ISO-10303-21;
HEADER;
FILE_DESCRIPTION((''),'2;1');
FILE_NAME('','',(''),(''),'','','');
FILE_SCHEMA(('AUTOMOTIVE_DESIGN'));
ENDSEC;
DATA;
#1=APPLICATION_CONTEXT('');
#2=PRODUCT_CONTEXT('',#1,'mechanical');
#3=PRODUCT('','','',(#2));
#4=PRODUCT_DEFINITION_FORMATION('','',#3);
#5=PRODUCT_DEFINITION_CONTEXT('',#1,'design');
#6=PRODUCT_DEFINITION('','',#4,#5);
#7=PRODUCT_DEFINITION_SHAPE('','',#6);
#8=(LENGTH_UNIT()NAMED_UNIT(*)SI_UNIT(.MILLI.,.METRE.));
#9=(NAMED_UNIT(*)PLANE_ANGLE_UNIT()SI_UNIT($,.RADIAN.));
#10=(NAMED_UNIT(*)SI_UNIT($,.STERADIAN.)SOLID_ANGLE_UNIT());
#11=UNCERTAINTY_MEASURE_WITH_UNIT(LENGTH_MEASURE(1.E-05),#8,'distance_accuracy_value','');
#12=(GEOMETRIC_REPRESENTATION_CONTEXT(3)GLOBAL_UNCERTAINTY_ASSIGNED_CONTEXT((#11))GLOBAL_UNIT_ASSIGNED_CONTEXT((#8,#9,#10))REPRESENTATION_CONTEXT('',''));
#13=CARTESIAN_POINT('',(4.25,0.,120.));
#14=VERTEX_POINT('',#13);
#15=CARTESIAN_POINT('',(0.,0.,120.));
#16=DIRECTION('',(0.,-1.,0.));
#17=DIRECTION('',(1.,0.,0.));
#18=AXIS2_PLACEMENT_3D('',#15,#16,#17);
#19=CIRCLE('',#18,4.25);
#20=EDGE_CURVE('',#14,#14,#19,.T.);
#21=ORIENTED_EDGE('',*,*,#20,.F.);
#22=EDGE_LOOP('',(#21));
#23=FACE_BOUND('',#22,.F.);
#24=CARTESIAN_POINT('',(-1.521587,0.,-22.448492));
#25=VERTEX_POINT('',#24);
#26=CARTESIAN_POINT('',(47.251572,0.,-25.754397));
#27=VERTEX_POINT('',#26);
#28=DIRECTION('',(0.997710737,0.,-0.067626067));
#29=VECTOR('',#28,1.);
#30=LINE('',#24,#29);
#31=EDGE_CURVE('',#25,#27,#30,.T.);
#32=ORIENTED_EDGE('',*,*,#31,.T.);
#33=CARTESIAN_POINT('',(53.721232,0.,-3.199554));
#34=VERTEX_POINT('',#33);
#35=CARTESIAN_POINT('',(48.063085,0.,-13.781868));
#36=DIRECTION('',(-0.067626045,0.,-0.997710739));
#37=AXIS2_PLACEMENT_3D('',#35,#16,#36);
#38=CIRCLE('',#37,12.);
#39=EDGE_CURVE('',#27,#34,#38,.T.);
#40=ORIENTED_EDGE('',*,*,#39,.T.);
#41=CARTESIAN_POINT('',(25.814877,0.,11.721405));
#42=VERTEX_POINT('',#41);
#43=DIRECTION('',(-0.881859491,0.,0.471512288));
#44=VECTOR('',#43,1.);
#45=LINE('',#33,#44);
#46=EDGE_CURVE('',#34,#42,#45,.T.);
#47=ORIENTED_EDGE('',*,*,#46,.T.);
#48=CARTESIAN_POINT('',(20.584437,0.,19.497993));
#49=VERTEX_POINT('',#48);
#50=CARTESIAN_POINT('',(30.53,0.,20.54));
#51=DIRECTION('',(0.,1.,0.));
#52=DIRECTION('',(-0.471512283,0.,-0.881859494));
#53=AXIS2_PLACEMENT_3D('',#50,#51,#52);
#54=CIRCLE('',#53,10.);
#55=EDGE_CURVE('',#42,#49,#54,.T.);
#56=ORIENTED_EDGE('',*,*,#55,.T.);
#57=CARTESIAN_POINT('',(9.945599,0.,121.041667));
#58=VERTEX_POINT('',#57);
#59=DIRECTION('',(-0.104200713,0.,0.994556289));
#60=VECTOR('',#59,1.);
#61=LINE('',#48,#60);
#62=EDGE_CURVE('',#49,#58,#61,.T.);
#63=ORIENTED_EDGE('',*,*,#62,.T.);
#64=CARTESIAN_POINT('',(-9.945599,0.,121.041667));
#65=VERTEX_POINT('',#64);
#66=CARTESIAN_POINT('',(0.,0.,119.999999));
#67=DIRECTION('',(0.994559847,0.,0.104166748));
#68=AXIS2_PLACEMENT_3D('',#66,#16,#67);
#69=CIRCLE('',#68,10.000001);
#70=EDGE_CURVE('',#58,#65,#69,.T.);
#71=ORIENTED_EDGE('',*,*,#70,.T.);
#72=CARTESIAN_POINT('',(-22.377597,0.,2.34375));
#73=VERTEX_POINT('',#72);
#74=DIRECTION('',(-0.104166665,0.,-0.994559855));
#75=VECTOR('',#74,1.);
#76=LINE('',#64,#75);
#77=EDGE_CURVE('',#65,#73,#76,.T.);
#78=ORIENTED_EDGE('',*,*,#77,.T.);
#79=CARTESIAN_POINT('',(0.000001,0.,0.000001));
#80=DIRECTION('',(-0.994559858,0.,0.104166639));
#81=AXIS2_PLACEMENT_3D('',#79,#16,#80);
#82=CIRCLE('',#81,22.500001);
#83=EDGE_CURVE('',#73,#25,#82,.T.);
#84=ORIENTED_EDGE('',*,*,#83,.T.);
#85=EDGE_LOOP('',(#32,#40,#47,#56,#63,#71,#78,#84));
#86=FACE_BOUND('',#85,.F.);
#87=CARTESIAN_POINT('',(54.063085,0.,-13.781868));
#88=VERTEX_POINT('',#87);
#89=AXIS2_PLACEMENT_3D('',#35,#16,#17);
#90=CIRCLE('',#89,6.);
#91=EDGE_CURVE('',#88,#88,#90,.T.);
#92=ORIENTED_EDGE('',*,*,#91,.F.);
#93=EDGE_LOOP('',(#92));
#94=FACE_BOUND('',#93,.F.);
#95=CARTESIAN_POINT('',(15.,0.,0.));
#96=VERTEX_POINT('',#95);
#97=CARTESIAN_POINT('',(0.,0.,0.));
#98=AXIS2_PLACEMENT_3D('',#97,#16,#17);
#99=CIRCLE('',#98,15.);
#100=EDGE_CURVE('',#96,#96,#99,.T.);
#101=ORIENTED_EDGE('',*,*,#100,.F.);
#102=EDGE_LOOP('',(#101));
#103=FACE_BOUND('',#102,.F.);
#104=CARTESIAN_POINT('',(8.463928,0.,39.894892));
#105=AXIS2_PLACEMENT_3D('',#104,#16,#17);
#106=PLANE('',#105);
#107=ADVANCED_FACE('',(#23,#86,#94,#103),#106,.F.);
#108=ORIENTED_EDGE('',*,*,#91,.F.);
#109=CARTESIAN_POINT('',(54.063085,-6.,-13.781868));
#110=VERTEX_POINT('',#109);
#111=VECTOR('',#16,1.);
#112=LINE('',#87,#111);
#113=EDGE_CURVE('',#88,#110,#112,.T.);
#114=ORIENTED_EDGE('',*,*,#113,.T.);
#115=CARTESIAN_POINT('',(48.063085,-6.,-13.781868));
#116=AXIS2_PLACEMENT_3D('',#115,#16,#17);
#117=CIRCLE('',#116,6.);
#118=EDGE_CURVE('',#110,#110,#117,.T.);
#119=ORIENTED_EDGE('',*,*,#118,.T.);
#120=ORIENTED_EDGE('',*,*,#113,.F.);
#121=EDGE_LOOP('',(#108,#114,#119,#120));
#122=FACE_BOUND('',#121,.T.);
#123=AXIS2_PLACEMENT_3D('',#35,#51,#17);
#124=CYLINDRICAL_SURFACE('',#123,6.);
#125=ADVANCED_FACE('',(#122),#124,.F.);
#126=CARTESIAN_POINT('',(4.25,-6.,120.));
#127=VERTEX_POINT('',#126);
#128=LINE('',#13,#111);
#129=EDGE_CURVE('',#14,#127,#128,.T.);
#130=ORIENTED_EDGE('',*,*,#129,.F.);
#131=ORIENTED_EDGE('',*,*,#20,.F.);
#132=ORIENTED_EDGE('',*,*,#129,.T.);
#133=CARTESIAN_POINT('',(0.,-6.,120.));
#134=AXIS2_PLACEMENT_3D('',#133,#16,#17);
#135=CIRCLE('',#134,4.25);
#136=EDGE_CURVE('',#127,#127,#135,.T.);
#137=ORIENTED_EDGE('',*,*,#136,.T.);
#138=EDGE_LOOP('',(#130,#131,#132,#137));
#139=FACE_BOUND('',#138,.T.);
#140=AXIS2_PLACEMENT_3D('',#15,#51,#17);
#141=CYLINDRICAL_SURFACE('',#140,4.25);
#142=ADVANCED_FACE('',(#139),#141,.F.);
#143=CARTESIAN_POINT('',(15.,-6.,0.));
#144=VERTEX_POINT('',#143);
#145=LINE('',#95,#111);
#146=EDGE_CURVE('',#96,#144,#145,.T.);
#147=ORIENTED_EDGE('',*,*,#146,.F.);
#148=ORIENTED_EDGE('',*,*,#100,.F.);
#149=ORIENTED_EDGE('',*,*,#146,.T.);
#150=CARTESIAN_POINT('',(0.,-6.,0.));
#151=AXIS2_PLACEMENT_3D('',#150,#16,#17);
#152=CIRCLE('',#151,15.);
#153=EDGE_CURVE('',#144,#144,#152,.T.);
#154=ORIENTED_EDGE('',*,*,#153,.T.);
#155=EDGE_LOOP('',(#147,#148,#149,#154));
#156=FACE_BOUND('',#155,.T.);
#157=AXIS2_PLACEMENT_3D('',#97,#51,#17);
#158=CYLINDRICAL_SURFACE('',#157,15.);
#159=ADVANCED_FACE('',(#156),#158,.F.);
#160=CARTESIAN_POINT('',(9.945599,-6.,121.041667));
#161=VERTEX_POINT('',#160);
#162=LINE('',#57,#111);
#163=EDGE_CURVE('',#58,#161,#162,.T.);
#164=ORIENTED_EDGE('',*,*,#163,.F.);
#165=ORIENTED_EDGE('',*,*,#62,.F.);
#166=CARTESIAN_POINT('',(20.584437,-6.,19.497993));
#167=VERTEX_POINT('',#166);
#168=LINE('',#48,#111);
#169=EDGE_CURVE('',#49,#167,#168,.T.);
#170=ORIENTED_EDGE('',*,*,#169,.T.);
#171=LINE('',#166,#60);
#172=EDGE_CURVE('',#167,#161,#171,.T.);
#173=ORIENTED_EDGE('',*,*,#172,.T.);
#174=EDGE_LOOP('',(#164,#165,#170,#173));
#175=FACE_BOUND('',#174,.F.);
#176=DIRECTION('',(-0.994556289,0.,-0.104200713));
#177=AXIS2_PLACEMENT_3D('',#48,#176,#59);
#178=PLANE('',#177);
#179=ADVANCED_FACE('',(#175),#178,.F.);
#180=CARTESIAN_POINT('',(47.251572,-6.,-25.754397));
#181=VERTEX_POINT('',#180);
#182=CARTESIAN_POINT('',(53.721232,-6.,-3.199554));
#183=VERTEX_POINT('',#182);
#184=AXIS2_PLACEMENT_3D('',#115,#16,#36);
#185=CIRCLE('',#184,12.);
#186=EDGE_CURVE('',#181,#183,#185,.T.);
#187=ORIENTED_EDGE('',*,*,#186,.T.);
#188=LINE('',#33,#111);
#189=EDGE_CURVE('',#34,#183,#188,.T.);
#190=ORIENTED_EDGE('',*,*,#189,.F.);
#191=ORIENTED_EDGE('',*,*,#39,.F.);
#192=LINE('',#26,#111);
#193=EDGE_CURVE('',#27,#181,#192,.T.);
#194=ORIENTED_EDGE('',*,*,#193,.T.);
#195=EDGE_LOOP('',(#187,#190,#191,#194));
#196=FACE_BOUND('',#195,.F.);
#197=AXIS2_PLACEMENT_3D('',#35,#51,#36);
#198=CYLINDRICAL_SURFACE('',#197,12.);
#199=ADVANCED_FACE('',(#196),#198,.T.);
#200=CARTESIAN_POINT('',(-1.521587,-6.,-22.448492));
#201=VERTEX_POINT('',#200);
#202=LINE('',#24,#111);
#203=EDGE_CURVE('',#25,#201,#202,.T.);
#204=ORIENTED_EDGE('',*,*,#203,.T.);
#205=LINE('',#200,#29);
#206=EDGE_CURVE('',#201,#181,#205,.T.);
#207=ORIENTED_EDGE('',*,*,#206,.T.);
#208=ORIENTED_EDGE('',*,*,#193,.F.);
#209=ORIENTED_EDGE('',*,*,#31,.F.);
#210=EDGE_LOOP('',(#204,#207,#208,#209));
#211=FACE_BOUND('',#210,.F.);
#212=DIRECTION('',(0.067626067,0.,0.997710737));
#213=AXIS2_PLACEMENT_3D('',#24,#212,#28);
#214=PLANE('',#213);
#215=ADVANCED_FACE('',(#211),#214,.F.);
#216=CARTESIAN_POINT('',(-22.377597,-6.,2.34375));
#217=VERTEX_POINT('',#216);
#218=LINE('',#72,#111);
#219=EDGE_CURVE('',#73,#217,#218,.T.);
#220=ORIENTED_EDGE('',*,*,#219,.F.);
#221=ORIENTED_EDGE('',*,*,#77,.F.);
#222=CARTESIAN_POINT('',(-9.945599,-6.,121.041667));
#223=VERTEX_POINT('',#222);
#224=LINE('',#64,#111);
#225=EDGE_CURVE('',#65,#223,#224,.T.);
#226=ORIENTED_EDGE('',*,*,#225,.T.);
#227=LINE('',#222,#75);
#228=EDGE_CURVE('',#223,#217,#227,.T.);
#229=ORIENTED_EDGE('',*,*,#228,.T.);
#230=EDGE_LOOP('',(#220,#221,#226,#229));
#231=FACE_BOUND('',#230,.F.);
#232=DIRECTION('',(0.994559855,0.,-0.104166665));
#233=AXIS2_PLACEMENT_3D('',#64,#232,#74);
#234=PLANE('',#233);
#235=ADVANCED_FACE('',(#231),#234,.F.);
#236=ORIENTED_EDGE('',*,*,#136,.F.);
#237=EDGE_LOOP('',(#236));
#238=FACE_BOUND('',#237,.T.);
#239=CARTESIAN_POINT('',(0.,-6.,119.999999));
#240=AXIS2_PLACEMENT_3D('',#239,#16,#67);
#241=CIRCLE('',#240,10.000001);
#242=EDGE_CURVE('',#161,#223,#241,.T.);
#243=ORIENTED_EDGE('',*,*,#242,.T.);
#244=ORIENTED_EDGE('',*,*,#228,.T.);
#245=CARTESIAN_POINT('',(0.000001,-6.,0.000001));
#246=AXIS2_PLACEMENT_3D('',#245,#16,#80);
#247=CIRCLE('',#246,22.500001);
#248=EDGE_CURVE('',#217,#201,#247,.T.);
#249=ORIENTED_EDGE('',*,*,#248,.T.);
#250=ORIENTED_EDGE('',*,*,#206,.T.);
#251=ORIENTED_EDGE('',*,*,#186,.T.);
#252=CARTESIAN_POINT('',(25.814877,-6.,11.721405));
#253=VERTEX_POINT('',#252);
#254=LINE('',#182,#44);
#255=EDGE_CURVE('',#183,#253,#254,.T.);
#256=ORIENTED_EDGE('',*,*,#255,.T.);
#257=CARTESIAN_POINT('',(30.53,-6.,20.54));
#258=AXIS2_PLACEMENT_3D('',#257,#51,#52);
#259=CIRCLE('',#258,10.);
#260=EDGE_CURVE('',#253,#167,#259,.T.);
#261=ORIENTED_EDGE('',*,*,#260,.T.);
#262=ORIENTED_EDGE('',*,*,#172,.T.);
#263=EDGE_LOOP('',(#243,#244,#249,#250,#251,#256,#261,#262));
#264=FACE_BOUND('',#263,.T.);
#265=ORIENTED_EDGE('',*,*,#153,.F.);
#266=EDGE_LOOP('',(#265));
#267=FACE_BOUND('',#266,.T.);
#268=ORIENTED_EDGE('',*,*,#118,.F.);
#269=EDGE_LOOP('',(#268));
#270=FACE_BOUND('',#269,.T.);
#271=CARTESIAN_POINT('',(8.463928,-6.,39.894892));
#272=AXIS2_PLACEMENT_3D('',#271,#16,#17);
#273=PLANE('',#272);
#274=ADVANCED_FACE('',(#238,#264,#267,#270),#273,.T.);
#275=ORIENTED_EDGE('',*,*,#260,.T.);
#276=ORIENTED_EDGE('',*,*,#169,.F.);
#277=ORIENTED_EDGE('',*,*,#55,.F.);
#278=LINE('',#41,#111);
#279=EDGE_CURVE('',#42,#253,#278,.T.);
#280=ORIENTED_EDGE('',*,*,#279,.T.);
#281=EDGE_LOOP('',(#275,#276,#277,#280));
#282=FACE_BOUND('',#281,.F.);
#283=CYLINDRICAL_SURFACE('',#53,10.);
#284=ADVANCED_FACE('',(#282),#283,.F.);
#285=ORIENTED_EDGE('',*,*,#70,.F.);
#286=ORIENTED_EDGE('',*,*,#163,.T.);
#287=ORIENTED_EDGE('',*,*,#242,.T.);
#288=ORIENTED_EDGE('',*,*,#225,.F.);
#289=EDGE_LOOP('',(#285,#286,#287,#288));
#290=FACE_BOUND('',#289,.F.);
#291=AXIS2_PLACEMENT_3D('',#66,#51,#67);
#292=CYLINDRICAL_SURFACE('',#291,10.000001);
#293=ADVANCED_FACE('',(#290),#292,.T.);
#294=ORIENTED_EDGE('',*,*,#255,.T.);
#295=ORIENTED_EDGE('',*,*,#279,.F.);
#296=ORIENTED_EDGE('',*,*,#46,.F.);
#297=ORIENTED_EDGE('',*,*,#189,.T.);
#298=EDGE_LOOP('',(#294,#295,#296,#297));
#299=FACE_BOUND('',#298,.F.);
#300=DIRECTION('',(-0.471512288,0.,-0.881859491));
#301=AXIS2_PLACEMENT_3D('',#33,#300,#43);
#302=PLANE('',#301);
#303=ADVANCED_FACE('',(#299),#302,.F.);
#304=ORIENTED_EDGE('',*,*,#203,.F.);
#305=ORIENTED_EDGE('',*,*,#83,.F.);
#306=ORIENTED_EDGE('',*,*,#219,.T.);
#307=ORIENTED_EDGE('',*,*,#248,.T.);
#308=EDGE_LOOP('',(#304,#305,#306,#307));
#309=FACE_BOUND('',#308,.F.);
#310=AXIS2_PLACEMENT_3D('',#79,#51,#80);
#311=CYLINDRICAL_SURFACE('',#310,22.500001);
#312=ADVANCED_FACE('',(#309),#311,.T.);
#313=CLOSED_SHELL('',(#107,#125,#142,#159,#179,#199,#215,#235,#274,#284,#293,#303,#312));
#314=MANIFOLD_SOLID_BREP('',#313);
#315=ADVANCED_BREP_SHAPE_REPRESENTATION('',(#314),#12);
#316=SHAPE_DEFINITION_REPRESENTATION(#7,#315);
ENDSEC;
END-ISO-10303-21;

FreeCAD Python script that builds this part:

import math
import FreeCAD as App
import Part
import Sketcher

V = App.Vector

doc = App.newDocument("Part")
body = doc.addObject("PartDesign::Body", "Body")

# Sketch on XZ plane
sketch1 = doc.addObject("Sketcher::SketchObject", "Sketch")
body.addObject(sketch1)
sketch1.AttachmentSupport = (doc.XZ_Plane, [""])
sketch1.MapMode = "FlatFace"
sketch1.addGeometry(Part.LineSegment(V(-9.9, 121, 0), V(-22.4, 2.3, 0)), False)
sketch1.addGeometry(Part.ArcOfCircle(Part.Circle(V(0, 0, 0), V(0, 0, 1), 22.5), math.radians(174), math.radians(266)), False)
sketch1.addGeometry(Part.LineSegment(V(-1.5, -22.4, 0), V(47.3, -25.8, 0)), False)
sketch1.addGeometry(Part.ArcOfCircle(Part.Circle(V(48.1, -13.8, 0), V(0, 0, 1), 12), math.radians(-94), math.radians(62)), False)
sketch1.addGeometry(Part.LineSegment(V(53.7, -3.2, 0), V(25.8, 11.7, 0)), False)
sketch1.addGeometry(Part.ArcOfCircle(Part.Circle(V(30.5, 20.5, 0), V(0, 0, 1), 10), math.radians(-174), math.radians(-118)), False)
sketch1.addGeometry(Part.LineSegment(V(20.6, 19.5, 0), V(9.9, 121, 0)), False)
sketch1.addGeometry(Part.ArcOfCircle(Part.Circle(V(0, 120, 0), V(0, 0, 1), 10), math.radians(6), math.radians(174)), False)
sketch1.addGeometry(Part.Circle(V(0, 0, 0), V(0, 0, 1), 15), False)
sketch1.addGeometry(Part.Circle(V(48.1, -13.8, 0), V(0, 0, 1), 6), False)
sketch1.addGeometry(Part.Circle(V(0, 120, 0), V(0, 0, 1), 4.2), False)
sketch1.addConstraint(Sketcher.Constraint("Tangent", 0, 2, 1, 1))
sketch1.addConstraint(Sketcher.Constraint("Tangent", 1, 2, 2, 1))
sketch1.addConstraint(Sketcher.Constraint("Tangent", 2, 2, 3, 1))
sketch1.addConstraint(Sketcher.Constraint("Tangent", 3, 2, 4, 1))
sketch1.addConstraint(Sketcher.Constraint("Tangent", 4, 2, 5, 2))
sketch1.addConstraint(Sketcher.Constraint("Tangent", 5, 1, 6, 1))
sketch1.addConstraint(Sketcher.Constraint("Coincident", 6, 2, 7, 1))
sketch1.addConstraint(Sketcher.Constraint("Tangent", 7, 2, 0, 1))
sketch1.addConstraint(Sketcher.Constraint("Coincident", 1, 3, -1, 1))
sketch1.addConstraint(Sketcher.Constraint("Coincident", 8, 3, -1, 1))
sketch1.addConstraint(Sketcher.Constraint("Coincident", 9, 3, 3, 3))
sketch1.addConstraint(Sketcher.Constraint("Coincident", 10, 3, 7, 3))
sketch1.addConstraint(Sketcher.Constraint("Equal", 5, 7))
sketch1.addConstraint(Sketcher.Constraint("Symmetric", 6, 2, 7, 2, -2))
sketch1.addConstraint(Sketcher.Constraint("Diameter", 8, 30.0))
sketch1.addConstraint(Sketcher.Constraint("Diameter", 9, 12.0))
sketch1.addConstraint(Sketcher.Constraint("Radius", 3, 12.0))
sketch1.addConstraint(Sketcher.Constraint("Radius", 5, 10.0))
sketch1.addConstraint(Sketcher.Constraint("Diameter", 10, 8.5))
sketch1.addConstraint(Sketcher.Constraint("Radius", 1, 22.500001))
sketch1.addConstraint(Sketcher.Constraint("DistanceY", -1, 1, 7, 3, 119.999999))
sketch1.addConstraint(Sketcher.Constraint("DistanceX", -1, 1, 5, 3, 30.53))
sketch1.addConstraint(Sketcher.Constraint("DistanceY", -1, 1, 5, 3, 20.54))
sketch1.addConstraint(Sketcher.Constraint("Distance", 4, 31.6449))
sketch1.addConstraint(Sketcher.Constraint("Distance", 2, 48.88507))
pad1 = doc.addObject("PartDesign::Pad", "Pad")
body.addObject(pad1)
pad1.Profile = sketch1
pad1.Length = 6

doc.recompute()
